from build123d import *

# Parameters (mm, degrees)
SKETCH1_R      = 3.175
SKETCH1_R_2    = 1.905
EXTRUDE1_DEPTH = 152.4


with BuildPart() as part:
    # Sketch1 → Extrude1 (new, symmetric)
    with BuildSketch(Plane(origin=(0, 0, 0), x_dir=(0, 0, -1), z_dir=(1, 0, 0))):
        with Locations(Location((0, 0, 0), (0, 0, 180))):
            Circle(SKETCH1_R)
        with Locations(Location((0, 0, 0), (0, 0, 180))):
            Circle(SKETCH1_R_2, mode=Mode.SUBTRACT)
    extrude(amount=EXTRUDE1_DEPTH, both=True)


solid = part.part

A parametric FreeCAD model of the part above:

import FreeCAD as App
import Part
import Sketcher
Q = App.Units.Quantity

doc = App.newDocument("Part")
body = doc.addObject("PartDesign::Body", "Body")

sketch1 = doc.addObject("Sketcher::SketchObject", "Sketch")
body.addObject(sketch1)
sketch1.AttachmentSupport = (doc.YZ_Plane, [""])
sketch1.MapMode = "FlatFace"
sketch1.addGeometry(Part.Circle(App.Vector(0, 0, 0), App.Vector(0, 0, 1), 3.2), False)
sketch1.addGeometry(Part.Circle(App.Vector(0, 0, 0), App.Vector(0, 0, 1), 1.9), False)
sketch1.addConstraint(Sketcher.Constraint("Coincident", 0, 3, -1, 1))
sketch1.addConstraint(Sketcher.Constraint("Coincident", 1, 3, -1, 1))
sketch1.addConstraint(Sketcher.Constraint("Diameter", 0, Q("0.25 in")))
sketch1.addConstraint(Sketcher.Constraint("Diameter", 1, Q("0.15 in")))
pad1 = doc.addObject("PartDesign::Pad", "Pad")
body.addObject(pad1)
pad1.Profile = sketch1
pad1.Length = Q("12 in")
pad1.Midplane = True

doc.recompute()
